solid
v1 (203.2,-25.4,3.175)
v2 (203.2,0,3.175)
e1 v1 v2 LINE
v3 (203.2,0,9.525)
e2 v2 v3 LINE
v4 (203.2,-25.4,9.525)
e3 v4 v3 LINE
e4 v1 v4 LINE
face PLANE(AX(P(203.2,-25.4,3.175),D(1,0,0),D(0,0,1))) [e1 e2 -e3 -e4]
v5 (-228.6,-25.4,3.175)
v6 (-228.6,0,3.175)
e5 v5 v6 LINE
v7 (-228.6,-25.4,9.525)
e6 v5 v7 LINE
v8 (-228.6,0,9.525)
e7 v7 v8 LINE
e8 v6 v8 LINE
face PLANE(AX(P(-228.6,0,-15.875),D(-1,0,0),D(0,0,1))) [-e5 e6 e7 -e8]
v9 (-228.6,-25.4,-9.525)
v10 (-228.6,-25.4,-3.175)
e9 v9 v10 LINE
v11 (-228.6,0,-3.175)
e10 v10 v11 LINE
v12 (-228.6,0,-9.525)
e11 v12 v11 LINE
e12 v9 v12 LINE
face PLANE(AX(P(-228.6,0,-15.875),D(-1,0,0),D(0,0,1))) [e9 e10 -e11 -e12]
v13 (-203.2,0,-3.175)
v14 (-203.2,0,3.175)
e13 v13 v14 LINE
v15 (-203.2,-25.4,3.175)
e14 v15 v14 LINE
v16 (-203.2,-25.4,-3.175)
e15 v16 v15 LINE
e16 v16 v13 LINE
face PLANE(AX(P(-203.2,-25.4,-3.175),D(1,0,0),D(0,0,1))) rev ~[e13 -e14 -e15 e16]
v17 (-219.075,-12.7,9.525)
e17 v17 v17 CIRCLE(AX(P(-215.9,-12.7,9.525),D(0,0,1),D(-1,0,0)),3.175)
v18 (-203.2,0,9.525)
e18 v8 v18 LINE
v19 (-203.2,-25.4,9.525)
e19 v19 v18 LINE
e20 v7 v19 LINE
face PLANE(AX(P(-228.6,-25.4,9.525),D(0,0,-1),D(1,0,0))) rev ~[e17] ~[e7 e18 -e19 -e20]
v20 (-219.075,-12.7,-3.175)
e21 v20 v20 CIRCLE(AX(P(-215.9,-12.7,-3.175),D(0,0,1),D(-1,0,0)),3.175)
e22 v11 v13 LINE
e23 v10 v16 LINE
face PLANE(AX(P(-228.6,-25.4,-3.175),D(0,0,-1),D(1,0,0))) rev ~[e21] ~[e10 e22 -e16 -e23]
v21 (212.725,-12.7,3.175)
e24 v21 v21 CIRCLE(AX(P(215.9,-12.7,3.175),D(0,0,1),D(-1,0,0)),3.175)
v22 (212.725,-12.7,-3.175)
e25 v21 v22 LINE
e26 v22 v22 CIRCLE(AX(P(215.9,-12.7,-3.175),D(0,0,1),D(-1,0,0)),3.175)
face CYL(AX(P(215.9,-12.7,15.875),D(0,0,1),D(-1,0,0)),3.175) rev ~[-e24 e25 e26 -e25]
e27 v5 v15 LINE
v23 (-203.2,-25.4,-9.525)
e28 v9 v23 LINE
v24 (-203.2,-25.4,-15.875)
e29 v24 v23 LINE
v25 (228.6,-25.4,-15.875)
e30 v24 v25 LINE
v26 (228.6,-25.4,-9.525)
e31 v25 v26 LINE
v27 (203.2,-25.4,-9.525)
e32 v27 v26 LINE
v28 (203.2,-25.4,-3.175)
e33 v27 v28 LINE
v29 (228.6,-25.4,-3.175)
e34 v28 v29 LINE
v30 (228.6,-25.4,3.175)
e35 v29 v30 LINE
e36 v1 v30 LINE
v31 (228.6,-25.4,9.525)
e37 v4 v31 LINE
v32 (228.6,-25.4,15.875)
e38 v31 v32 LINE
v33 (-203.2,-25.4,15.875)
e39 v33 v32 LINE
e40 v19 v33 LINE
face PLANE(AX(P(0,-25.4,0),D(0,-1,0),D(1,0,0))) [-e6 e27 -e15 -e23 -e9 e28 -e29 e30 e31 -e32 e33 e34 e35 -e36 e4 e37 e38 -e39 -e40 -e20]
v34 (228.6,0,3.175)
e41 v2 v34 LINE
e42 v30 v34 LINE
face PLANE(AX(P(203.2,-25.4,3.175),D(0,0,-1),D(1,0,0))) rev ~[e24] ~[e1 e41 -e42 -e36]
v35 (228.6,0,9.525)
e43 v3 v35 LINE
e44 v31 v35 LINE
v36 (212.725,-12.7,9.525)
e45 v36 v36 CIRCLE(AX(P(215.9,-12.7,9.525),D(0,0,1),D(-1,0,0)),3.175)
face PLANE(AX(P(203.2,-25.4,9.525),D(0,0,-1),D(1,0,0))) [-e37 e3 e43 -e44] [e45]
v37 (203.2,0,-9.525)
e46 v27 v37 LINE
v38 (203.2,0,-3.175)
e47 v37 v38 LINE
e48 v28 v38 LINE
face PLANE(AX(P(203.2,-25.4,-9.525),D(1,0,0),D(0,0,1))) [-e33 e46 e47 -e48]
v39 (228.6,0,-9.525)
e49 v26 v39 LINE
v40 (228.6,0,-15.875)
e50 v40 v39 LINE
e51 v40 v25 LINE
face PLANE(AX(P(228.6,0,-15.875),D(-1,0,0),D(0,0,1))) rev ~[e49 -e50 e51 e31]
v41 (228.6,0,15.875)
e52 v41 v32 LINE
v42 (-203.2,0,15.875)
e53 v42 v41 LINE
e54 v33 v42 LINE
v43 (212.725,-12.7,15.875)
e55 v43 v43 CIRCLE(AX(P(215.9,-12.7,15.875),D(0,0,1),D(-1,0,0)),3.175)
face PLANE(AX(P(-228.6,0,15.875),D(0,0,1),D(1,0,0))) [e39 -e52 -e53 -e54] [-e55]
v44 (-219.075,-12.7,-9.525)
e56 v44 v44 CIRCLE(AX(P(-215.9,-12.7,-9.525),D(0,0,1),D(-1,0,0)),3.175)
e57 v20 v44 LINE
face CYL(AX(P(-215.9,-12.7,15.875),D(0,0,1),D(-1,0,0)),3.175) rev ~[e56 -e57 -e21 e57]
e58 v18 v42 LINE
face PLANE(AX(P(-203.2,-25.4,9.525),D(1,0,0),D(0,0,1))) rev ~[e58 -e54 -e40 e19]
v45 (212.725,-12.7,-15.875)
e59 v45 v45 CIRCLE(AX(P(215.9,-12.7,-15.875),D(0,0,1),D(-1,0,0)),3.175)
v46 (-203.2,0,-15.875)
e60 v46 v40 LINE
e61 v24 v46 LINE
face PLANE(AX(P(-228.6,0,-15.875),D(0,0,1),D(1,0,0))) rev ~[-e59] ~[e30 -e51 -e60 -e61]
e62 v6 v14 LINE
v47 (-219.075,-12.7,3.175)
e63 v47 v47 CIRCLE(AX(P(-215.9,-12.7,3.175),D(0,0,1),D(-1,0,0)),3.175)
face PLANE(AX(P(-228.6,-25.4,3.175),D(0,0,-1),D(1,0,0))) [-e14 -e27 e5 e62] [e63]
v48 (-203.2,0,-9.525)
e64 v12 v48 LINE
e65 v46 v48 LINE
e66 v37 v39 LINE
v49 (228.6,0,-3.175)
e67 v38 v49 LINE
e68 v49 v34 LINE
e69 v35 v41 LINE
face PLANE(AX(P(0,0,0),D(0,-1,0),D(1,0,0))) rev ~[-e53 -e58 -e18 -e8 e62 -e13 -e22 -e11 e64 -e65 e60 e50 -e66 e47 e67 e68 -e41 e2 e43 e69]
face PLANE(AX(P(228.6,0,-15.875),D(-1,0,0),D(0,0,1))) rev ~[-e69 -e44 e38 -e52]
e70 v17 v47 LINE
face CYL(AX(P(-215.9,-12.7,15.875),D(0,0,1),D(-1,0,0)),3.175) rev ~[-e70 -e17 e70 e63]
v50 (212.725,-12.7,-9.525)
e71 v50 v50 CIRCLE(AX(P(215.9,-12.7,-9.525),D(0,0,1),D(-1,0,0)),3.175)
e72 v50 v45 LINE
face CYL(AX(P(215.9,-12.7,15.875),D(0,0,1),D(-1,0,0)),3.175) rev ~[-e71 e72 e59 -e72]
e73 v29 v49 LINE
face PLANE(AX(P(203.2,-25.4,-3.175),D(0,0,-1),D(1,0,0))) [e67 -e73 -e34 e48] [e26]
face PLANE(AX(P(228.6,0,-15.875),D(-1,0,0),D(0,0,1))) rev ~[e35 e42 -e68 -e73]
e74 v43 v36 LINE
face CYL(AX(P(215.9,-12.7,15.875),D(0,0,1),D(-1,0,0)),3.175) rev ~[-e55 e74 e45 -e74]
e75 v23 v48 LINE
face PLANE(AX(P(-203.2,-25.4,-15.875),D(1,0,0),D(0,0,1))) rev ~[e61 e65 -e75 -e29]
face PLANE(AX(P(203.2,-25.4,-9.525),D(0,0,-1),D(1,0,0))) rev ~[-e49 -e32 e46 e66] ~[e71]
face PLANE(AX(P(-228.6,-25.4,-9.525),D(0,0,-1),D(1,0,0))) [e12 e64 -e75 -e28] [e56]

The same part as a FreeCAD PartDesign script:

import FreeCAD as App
import Part
import Sketcher
from FreeCAD import Vector
Q = App.Units.Quantity


def add_polygon(sketch, points):
    """Adds a closed chain of lines whose ends are joined by coincident constraints."""
    first, n = sketch.GeometryCount, len(points)
    for a, b in zip(points, points[1:] + points[:1]):
        sketch.addGeometry(Part.LineSegment(App.Vector(*a, 0), App.Vector(*b, 0)), False)
    for i in range(n):
        sketch.addConstraint(Sketcher.Constraint("Coincident", first + i, 2, first + (i + 1) % n, 1))

doc = App.newDocument("Part")
body = doc.addObject("PartDesign::Body", "Body")

sketch1 = body.newObject("Sketcher::SketchObject", "Sketch")
sketch1.AttachmentSupport = (doc.getObject("XZ_Plane"), [""])
sketch1.MapMode = "FlatFace"
add_polygon(sketch1, [(-228.6, 15.875), (-228.6, -15.875), (228.6, -15.875), (228.6, 15.875)])
sketch1.addConstraint([
    Sketcher.Constraint("Vertical", 0),
    Sketcher.Constraint("Horizontal", 1),
    Sketcher.Constraint("Vertical", 2),
    Sketcher.Constraint("Horizontal", 3),
    Sketcher.Constraint("Symmetric", 0, 2, 2, 2, -1, 1),
    Sketcher.Constraint("DistanceX", 1, 1, 1, 2, Q("18 in")),
    Sketcher.Constraint("DistanceY", 0, 2, 0, 1, Q("1.25 in")),
])
pad1 = body.newObject("PartDesign::Pad", "Pad")
pad1.Profile = sketch1
pad1.Length = Q("1 in")

sketch2 = body.newObject("Sketcher::SketchObject", "Sketch001")
sketch2.AttachmentSupport = (doc.getObject("XZ_Plane"), [""])
sketch2.MapMode = "FlatFace"
sketch2.AttachmentOffset = App.Placement(Vector(0, 0, 1 * 25.4), App.Rotation())
add_polygon(sketch2, [(-228.6, 15.875), (-228.6, 9.525), (-203.2, 9.525), (-203.2, 15.875)])
add_polygon(sketch2, [(-228.6, 3.175), (-228.6, -3.175), (-203.2, -3.175), (-203.2, 3.175)])
add_polygon(sketch2, [(-228.6, -9.525), (-228.6, -15.875), (-203.2, -15.875), (-203.2, -9.525)])
sketch2.addConstraint([
    Sketcher.Constraint("Vertical", 0),
    Sketcher.Constraint("Horizontal", 1),
    Sketcher.Constraint("Vertical", 2),
    Sketcher.Constraint("Horizontal", 3),
    Sketcher.Constraint("Vertical", 4),
    Sketcher.Constraint("Horizontal", 5),
    Sketcher.Constraint("Vertical", 6),
    Sketcher.Constraint("Horizontal", 7),
    Sketcher.Constraint("Vertical", 8),
    Sketcher.Constraint("Horizontal", 9),
    Sketcher.Constraint("Vertical", 10),
    Sketcher.Constraint("Horizontal", 11),
    Sketcher.Constraint("Symmetric", 3, 2, 8, 2, -1),
    Sketcher.Constraint("Symmetric", 1, 2, 10, 2, -1),
    Sketcher.Constraint("Vertical", 3, 2, 4, 2),
    Sketcher.Constraint("Vertical", 2, 2, 5, 2),
    Sketcher.Constraint("Equal", 2, 4),
    Sketcher.Constraint("DistanceX", 1, 1, 1, 2, Q("1 in")),
    Sketcher.Constraint("DistanceX", 0, 2, -1, 1, Q("9 in")),
    Sketcher.Constraint("DistanceY", 8, 2, 0, 2, Q("1 in")),
    Sketcher.Constraint("DistanceY", 0, 2, 0, 1, Q("0.25 in")),
    Sketcher.Constraint("DistanceY", 4, 2, 0, 2, Q("0.5 in")),
])
pocket1 = body.newObject("PartDesign::Pocket", "Pocket")
pocket1.Profile = sketch2
pocket1.Type = "ThroughAll"

sketch3 = body.newObject("Sketcher::SketchObject", "Sketch002")
sketch3.AttachmentSupport = (doc.getObject("XZ_Plane"), [""])
sketch3.MapMode = "FlatFace"
sketch3.AttachmentOffset = App.Placement(Vector(0, 0, 1 * 25.4), App.Rotation())
add_polygon(sketch3, [(203.2, 9.525), (203.2, 3.175), (228.6, 3.175), (228.6, 9.525)])
add_polygon(sketch3, [(203.2, -3.175), (203.2, -9.525), (228.6, -9.525), (228.6, -3.175)])
sketch3.addConstraint([
    Sketcher.Constraint("Vertical", 0),
    Sketcher.Constraint("Horizontal", 1),
    Sketcher.Constraint("Vertical", 2),
    Sketcher.Constraint("Horizontal", 3),
    Sketcher.Constraint("Vertical", 4),
    Sketcher.Constraint("Horizontal", 5),
    Sketcher.Constraint("Vertical", 6),
    Sketcher.Constraint("Horizontal", 7),
    Sketcher.Constraint("Symmetric", 3, 2, 4, 2, -1),
    Sketcher.Constraint("Symmetric", 1, 2, 6, 2, -1),
    Sketcher.Constraint("DistanceX", 1, 1, 1, 2, Q("1 in")),
    Sketcher.Constraint("DistanceX", -1, 1, 0, 2, Q("8 in")),
    Sketcher.Constraint("DistanceY", 0, 2, 0, 1, Q("0.25 in")),
    Sketcher.Constraint("DistanceY", 4, 2, 0, 2, Q("0.5 in")),
])
pocket2 = body.newObject("PartDesign::Pocket", "Pocket001")
pocket2.Profile = sketch3
pocket2.Type = "ThroughAll"

sketch4 = body.newObject("Sketcher::SketchObject", "Sketch003")
sketch4.AttachmentSupport = (doc.getObject("XY_Plane"), [""])
sketch4.MapMode = "FlatFace"
sketch4.AttachmentOffset = App.Placement(Vector(0, 0, 0.625 * 25.4), App.Rotation())
sketch4.addGeometry([
    Part.Circle(Vector(-215.9, -12.7, 0), Vector(0, 0, 1), 3.175),
    Part.Circle(Vector(215.9, -12.7, 0), Vector(0, 0, 1), 3.175),
], False)
sketch4.addConstraint([
    Sketcher.Constraint("Equal", 0, 1),
    Sketcher.Constraint("Symmetric", 0, 3, 1, 3, -2),
    Sketcher.Constraint("Diameter", 0, Q("0.25 in")),
    Sketcher.Constraint("DistanceX", 0, 3, 1, 3, Q("17 in")),
    Sketcher.Constraint("DistanceY", 0, 3, -1, 1, Q("0.5 in")),
])
pocket3 = body.newObject("PartDesign::Pocket", "Pocket002")
pocket3.Profile = sketch4
pocket3.Type = "ThroughAll"

doc.recompute()
